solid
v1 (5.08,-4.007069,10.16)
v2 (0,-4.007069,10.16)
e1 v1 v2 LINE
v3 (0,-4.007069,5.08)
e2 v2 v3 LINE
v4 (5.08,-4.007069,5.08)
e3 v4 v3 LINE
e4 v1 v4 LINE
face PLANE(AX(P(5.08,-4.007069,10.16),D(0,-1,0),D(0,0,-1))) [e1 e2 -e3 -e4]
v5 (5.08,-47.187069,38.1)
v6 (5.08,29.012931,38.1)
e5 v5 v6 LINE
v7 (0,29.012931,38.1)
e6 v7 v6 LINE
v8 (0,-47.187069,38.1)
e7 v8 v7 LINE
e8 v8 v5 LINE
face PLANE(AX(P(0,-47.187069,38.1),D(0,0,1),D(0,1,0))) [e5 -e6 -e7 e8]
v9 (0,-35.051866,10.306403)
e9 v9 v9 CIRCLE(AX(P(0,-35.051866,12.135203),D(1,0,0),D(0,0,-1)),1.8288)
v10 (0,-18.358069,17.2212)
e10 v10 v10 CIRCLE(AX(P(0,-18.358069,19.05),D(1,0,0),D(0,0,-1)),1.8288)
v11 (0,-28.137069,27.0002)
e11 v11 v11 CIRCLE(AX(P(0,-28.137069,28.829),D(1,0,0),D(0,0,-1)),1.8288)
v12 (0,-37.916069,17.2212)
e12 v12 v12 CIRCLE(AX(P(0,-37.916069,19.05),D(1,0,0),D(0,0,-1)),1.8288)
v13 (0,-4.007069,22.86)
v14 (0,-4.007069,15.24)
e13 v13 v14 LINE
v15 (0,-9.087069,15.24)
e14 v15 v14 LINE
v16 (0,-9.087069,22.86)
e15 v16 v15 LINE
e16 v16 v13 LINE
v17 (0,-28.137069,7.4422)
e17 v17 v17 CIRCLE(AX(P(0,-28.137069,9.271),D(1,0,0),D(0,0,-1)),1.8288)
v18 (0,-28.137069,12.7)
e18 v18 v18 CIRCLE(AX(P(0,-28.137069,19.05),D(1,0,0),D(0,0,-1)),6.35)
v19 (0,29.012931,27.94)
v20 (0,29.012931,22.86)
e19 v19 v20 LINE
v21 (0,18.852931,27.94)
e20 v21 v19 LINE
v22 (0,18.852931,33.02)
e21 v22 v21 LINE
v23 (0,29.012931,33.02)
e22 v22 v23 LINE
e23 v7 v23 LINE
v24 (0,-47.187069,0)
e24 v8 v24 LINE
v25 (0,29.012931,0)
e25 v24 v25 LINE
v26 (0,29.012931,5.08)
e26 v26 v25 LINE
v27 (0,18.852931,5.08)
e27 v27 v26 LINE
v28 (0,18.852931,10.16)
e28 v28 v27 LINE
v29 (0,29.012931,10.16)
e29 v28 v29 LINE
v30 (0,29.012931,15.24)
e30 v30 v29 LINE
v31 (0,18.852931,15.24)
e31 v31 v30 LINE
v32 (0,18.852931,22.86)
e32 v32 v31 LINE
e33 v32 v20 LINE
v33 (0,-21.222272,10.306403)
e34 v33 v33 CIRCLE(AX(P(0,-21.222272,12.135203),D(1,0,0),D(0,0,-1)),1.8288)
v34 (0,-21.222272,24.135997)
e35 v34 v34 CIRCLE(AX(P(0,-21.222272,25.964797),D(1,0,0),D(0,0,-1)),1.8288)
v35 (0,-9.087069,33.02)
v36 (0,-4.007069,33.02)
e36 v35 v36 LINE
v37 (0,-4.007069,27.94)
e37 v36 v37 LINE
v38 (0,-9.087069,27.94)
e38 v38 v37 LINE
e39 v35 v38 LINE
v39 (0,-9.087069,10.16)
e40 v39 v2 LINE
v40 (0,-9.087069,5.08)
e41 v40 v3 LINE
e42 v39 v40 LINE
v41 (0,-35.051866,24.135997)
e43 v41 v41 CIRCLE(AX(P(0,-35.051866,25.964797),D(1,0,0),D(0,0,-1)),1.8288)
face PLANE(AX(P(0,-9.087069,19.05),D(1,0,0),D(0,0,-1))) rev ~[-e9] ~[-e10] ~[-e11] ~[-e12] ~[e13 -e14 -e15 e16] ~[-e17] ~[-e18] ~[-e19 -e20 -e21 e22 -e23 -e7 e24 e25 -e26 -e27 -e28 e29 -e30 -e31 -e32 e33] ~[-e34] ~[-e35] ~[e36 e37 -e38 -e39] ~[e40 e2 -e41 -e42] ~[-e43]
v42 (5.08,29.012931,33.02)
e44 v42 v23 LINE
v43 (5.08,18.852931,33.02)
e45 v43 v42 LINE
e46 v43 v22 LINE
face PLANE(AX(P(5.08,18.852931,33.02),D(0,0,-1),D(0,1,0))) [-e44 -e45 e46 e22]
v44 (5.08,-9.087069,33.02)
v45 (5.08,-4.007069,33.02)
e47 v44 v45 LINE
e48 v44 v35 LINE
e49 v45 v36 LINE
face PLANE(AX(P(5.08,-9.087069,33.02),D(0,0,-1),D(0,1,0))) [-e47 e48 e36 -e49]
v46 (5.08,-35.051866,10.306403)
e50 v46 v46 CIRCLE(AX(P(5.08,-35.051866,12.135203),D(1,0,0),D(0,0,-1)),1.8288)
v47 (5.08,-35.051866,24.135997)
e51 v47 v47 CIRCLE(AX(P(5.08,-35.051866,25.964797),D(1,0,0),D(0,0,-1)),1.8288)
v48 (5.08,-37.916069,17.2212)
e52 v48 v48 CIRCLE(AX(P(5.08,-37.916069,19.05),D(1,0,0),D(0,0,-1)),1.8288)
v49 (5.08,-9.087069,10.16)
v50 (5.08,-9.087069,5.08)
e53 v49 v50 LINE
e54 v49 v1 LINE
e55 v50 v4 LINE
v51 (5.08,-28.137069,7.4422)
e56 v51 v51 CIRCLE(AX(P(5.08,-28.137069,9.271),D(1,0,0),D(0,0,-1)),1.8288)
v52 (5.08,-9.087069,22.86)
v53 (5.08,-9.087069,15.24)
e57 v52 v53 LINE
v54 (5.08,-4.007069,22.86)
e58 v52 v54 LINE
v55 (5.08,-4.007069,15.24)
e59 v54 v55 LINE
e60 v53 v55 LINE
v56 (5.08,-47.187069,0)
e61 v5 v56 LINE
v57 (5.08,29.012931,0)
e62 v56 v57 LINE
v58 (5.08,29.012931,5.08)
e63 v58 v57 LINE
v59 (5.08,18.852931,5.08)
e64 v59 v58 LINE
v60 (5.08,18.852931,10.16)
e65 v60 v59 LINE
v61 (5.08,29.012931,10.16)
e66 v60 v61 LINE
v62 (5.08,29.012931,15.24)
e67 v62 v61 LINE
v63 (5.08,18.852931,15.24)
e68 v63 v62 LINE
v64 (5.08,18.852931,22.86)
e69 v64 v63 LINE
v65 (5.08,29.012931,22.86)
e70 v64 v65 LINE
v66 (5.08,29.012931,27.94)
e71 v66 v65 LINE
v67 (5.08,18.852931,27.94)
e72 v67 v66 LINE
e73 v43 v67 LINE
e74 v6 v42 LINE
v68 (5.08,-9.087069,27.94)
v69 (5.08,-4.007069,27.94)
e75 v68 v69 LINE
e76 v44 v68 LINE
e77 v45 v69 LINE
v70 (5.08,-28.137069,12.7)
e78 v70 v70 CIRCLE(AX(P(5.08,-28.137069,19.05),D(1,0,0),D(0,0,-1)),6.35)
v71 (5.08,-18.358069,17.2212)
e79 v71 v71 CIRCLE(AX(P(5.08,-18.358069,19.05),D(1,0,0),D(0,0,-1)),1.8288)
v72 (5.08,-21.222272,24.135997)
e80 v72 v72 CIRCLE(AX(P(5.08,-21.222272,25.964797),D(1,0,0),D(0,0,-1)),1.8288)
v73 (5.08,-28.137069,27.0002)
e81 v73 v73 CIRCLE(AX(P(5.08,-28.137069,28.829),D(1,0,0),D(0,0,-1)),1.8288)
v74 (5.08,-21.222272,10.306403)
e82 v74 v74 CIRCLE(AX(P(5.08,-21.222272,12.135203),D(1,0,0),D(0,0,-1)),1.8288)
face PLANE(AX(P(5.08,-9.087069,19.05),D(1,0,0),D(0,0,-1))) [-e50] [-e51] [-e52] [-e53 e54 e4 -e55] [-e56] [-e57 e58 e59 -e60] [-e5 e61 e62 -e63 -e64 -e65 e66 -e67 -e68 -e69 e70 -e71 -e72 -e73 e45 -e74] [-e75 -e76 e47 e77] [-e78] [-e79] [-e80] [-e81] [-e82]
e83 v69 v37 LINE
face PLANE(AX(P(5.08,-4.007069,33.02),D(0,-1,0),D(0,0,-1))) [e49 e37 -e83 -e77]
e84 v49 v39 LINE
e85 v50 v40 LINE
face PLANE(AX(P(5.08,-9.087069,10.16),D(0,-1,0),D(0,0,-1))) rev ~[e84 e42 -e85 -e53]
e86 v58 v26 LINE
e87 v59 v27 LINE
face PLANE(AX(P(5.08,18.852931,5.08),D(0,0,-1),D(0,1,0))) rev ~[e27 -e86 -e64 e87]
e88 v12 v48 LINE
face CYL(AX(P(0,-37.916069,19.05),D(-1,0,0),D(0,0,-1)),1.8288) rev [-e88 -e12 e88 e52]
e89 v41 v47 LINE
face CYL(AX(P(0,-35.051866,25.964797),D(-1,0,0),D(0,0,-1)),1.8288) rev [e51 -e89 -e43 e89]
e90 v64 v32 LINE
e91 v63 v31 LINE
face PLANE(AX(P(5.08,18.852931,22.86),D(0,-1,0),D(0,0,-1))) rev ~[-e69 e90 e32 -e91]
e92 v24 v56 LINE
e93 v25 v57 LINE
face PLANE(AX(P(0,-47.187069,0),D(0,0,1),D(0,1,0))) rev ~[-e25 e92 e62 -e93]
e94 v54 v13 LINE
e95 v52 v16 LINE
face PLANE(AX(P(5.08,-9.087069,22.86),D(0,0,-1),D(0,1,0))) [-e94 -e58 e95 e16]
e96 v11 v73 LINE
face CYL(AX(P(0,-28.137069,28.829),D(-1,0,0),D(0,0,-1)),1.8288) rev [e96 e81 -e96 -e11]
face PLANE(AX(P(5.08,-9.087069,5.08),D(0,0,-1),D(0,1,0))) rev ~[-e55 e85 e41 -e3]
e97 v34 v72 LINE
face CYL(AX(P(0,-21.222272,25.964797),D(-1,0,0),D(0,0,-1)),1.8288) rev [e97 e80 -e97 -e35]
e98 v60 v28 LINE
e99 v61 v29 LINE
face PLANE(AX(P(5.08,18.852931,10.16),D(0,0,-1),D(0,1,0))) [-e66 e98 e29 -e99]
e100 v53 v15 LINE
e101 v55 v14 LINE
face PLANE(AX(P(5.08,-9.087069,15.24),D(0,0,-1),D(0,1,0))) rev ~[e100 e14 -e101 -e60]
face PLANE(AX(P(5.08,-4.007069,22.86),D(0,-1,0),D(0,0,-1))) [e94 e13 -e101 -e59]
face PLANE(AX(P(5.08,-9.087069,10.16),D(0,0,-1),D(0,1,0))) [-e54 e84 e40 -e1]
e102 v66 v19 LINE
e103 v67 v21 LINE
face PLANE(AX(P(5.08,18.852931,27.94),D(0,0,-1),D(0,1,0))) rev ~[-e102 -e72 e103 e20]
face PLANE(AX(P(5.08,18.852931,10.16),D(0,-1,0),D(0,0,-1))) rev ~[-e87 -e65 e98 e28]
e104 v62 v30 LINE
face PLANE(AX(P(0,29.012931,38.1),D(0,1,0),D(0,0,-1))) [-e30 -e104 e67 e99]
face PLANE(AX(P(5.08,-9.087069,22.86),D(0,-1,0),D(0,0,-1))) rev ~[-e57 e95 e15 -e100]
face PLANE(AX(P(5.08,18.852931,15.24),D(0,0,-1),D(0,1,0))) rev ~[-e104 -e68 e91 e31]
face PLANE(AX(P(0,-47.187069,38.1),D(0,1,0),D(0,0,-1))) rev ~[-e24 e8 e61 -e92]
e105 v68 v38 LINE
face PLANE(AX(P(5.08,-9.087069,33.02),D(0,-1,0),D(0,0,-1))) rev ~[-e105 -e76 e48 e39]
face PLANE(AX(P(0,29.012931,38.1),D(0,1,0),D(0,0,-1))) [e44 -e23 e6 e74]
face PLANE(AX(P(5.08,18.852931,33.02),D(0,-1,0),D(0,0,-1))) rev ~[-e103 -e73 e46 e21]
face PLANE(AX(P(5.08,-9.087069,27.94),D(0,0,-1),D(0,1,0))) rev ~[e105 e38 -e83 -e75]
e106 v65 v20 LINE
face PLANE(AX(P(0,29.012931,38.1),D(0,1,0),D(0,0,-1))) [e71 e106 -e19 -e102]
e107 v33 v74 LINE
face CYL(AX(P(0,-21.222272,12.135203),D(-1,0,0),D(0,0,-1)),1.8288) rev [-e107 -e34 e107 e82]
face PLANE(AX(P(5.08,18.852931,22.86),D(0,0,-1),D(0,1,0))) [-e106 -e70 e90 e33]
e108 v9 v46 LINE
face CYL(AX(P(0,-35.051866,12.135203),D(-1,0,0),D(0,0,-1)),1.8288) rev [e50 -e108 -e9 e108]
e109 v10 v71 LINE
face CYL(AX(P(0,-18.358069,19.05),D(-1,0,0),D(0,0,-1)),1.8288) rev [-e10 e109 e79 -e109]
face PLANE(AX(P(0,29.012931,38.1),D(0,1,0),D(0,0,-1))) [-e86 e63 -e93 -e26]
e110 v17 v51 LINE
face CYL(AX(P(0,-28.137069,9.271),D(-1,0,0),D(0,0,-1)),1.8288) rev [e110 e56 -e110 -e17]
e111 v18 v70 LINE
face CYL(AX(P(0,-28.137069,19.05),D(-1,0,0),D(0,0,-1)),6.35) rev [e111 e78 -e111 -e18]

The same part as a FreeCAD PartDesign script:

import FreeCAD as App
import Part
import Sketcher

V = App.Vector
Q = App.Units.Quantity


def add_polygon(sketch, points):
    """Adds a closed chain of lines whose ends are joined by coincident constraints."""
    first, n = sketch.GeometryCount, len(points)
    for a, b in zip(points, points[1:] + points[:1]):
        sketch.addGeometry(Part.LineSegment(App.Vector(*a, 0), App.Vector(*b, 0)), False)
    for i in range(n):
        sketch.addConstraint(Sketcher.Constraint("Coincident", first + i, 2, first + (i + 1) % n, 1))

doc = App.newDocument("Part")
body = doc.addObject("PartDesign::Body", "Body")

# Sketch on YZ plane
sketch1 = body.newObject("Sketcher::SketchObject", "Sketch")
sketch1.AttachmentSupport = (doc.getObject("YZ_Plane"), [""])
sketch1.MapMode = "FlatFace"
add_polygon(sketch1, [(29, 38.1), (-47.2, 38.1), (-47.2, 0), (29, 0)])  # lines 0-3
sketch1.addGeometry(Part.Circle(V(-35.1, 26, 0), V(0, 0, 1), 1.8), False)  # 4
sketch1.addGeometry(Part.Circle(V(-28.1, 28.8, 0), V(0, 0, 1), 1.8), False)  # 5
sketch1.addGeometry(Part.Circle(V(-37.9, 19.1, 0), V(0, 0, 1), 1.8), False)  # 6
sketch1.addGeometry(Part.Circle(V(-35.1, 12.1, 0), V(0, 0, 1), 1.8), False)  # 7
sketch1.addGeometry(Part.Circle(V(-28.1, 19.1, 0), V(0, 0, 1), 6.3), False)  # 8
sketch1.addGeometry(Part.Circle(V(-28.1, 9.3, 0), V(0, 0, 1), 1.8), False)  # 9
sketch1.addGeometry(Part.Circle(V(-21.2, 26, 0), V(0, 0, 1), 1.8), False)  # 10
sketch1.addGeometry(Part.Circle(V(-18.4, 19.1, 0), V(0, 0, 1), 1.8), False)  # 11
sketch1.addGeometry(Part.Circle(V(-21.2, 12.1, 0), V(0, 0, 1), 1.8), False)  # 12
sketch1.addConstraint([
    Sketcher.Constraint("Horizontal", 0),
    Sketcher.Constraint("Vertical", 1),
    Sketcher.Constraint("Horizontal", 2),
    Sketcher.Constraint("Vertical", 3),
    Sketcher.Constraint("Equal", 4, 5),
    Sketcher.Constraint("Equal", 5, 6),
    Sketcher.Constraint("Equal", 6, 7),
    Sketcher.Constraint("Equal", 7, 9),
    Sketcher.Constraint("Equal", 9, 10),
    Sketcher.Constraint("Equal", 10, 11),
    Sketcher.Constraint("Equal", 11, 12),
    Sketcher.Constraint("PointOnObject", 1, 2, -1),
    Sketcher.Constraint("Horizontal", 6, 3, 8, 3),
    Sketcher.Constraint("Horizontal", 4, 3, 10, 3),
    Sketcher.Constraint("Horizontal", 8, 3, 11, 3),
    Sketcher.Constraint("Horizontal", 7, 3, 12, 3),
    Sketcher.Constraint("Vertical", 4, 3, 7, 3),
    Sketcher.Constraint("Vertical", 5, 3, 8, 3),
    Sketcher.Constraint("Vertical", 8, 3, 9, 3),
    Sketcher.Constraint("Vertical", 10, 3, 12, 3),
    Sketcher.Constraint("Diameter", 8, Q("0.5 in")),
    Sketcher.Constraint("DistanceX", 0, 2, 0, 1, Q("3 in")),
    Sketcher.Constraint("Diameter", 4, Q("0.144 in")),
    Sketcher.Constraint("DistanceY", 1, 2, 1, 1, Q("1.5 in")),
    Sketcher.Constraint("DistanceY", -1, 1, 6, 3, Q("0.75 in")),
    Sketcher.Constraint("DistanceY", 9, 3, 5, 3, Q("0.77 in")),
    Sketcher.Constraint("DistanceX", 0, 2, 5, 3, Q("0.75 in")),
    Sketcher.Constraint("DistanceY", -1, 1, 5, 3, Q("1.135 in")),
    Sketcher.Constraint("DistanceX", 6, 3, 5, 3, Q("0.385 in")),
    Sketcher.Constraint("DistanceX", 8, 3, 11, 3, Q("0.385 in")),
    Sketcher.Constraint("DistanceX", 5, 3, -1, 1, Q("28.137069 mm")),
    Sketcher.Constraint("DistanceX", 10, 3, -1, 1, Q("21.222272 mm")),
    Sketcher.Constraint("DistanceX", 4, 3, -1, 1, Q("35.051866 mm")),
    Sketcher.Constraint("DistanceY", -1, 1, 4, 3, Q("25.964797 mm")),
    Sketcher.Constraint("DistanceY", -1, 1, 7, 3, Q("12.135203 mm")),
])
pad1 = body.newObject("PartDesign::Pad", "Pad")
pad1.Profile = sketch1
pad1.Length = Q("0.2 in")

# Sketch on YZ plane
sketch2 = body.newObject("Sketcher::SketchObject", "Sketch001")
sketch2.AttachmentSupport = (doc.getObject("YZ_Plane"), [""])
sketch2.MapMode = "FlatFace"
sketch2.AttachmentOffset = App.Placement(V(0, 0, 0.2 * 25.4), App.Rotation())
add_polygon(sketch2, [(29, 33), (19, 33), (19, 28), (29, 28)])  # lines 0-3
add_polygon(sketch2, [(29, 10), (19, 10), (19, 5), (29, 5)])  # lines 4-7
add_polygon(sketch2, [(29, 23), (19, 23), (19, 15), (29, 15)])  # lines 8-11
add_polygon(sketch2, [(-4, 33), (-9, 33), (-9, 28), (-4, 28)])  # lines 12-15
add_polygon(sketch2, [(-4, 23), (-9, 23), (-9, 15), (-4, 15)])  # lines 16-19
add_polygon(sketch2, [(-4, 10), (-9, 10), (-9, 5), (-4, 5)])  # lines 20-23
sketch2.addConstraint([
    Sketcher.Constraint("Horizontal", 0),
    Sketcher.Constraint("Vertical", 1),
    Sketcher.Constraint("Horizontal", 2),
    Sketcher.Constraint("Vertical", 3),
    Sketcher.Constraint("Horizontal", 4),
    Sketcher.Constraint("Vertical", 5),
    Sketcher.Constraint("Horizontal", 6),
    Sketcher.Constraint("Vertical", 7),
    Sketcher.Constraint("Horizontal", 8),
    Sketcher.Constraint("Vertical", 9),
    Sketcher.Constraint("Horizontal", 10),
    Sketcher.Constraint("Vertical", 11),
    Sketcher.Constraint("Horizontal", 12),
    Sketcher.Constraint("Vertical", 13),
    Sketcher.Constraint("Horizontal", 14),
    Sketcher.Constraint("Vertical", 15),
    Sketcher.Constraint("Horizontal", 16),
    Sketcher.Constraint("Vertical", 17),
    Sketcher.Constraint("Horizontal", 18),
    Sketcher.Constraint("Vertical", 19),
    Sketcher.Constraint("Horizontal", 20),
    Sketcher.Constraint("Vertical", 21),
    Sketcher.Constraint("Horizontal", 22),
    Sketcher.Constraint("Vertical", 23),
    Sketcher.Constraint("Horizontal", 3, 2, 12, 2),
    Sketcher.Constraint("Horizontal", 2, 2, 13, 2),
    Sketcher.Constraint("Horizontal", 11, 2, 16, 2),
    Sketcher.Constraint("Horizontal", 10, 2, 17, 2),
    Sketcher.Constraint("Horizontal", 7, 2, 20, 2),
    Sketcher.Constraint("Horizontal", 6, 2, 21, 2),
    Sketcher.Constraint("Vertical", 1, 2, 4, 2),
    Sketcher.Constraint("Vertical", 3, 2, 6, 2),
    Sketcher.Constraint("Vertical", 5, 2, 8, 2),
    Sketcher.Constraint("Vertical", 7, 2, 10, 2),
    Sketcher.Constraint("Vertical", 13, 2, 16, 2),
    Sketcher.Constraint("Vertical", 15, 2, 18, 2),
    Sketcher.Constraint("Vertical", 17, 2, 20, 2),
    Sketcher.Constraint("Vertical", 19, 2, 22, 2),
    Sketcher.Constraint("Equal", 22, 1),
    Sketcher.Constraint("Equal", 3, 5),
    Sketcher.Constraint("DistanceX", 0, 2, 0, 1, Q("0.4 in")),
    Sketcher.Constraint("DistanceX", 12, 2, 12, 1, Q("0.2 in")),
    Sketcher.Constraint("DistanceY", 9, 2, 9, 1, Q("0.3 in")),
    Sketcher.Constraint("DistanceY", -1, 1, 0, 2, Q("1.3 in")),
    Sketcher.Constraint("DistanceY", -1, 1, 4, 2, Q("0.4 in")),
    Sketcher.Constraint("DistanceY", -1, 1, 8, 2, Q("0.9 in")),
    Sketcher.Constraint("DistanceX", 12, 2, 0, 2, Q("1.1 in")),
    Sketcher.Constraint("DistanceX", -1, 1, 0, 2, Q("18.852931 mm")),
])
pocket1 = body.newObject("PartDesign::Pocket", "Pocket")
pocket1.Profile = sketch2
pocket1.Length = Q("0.2 in")

doc.recompute()
